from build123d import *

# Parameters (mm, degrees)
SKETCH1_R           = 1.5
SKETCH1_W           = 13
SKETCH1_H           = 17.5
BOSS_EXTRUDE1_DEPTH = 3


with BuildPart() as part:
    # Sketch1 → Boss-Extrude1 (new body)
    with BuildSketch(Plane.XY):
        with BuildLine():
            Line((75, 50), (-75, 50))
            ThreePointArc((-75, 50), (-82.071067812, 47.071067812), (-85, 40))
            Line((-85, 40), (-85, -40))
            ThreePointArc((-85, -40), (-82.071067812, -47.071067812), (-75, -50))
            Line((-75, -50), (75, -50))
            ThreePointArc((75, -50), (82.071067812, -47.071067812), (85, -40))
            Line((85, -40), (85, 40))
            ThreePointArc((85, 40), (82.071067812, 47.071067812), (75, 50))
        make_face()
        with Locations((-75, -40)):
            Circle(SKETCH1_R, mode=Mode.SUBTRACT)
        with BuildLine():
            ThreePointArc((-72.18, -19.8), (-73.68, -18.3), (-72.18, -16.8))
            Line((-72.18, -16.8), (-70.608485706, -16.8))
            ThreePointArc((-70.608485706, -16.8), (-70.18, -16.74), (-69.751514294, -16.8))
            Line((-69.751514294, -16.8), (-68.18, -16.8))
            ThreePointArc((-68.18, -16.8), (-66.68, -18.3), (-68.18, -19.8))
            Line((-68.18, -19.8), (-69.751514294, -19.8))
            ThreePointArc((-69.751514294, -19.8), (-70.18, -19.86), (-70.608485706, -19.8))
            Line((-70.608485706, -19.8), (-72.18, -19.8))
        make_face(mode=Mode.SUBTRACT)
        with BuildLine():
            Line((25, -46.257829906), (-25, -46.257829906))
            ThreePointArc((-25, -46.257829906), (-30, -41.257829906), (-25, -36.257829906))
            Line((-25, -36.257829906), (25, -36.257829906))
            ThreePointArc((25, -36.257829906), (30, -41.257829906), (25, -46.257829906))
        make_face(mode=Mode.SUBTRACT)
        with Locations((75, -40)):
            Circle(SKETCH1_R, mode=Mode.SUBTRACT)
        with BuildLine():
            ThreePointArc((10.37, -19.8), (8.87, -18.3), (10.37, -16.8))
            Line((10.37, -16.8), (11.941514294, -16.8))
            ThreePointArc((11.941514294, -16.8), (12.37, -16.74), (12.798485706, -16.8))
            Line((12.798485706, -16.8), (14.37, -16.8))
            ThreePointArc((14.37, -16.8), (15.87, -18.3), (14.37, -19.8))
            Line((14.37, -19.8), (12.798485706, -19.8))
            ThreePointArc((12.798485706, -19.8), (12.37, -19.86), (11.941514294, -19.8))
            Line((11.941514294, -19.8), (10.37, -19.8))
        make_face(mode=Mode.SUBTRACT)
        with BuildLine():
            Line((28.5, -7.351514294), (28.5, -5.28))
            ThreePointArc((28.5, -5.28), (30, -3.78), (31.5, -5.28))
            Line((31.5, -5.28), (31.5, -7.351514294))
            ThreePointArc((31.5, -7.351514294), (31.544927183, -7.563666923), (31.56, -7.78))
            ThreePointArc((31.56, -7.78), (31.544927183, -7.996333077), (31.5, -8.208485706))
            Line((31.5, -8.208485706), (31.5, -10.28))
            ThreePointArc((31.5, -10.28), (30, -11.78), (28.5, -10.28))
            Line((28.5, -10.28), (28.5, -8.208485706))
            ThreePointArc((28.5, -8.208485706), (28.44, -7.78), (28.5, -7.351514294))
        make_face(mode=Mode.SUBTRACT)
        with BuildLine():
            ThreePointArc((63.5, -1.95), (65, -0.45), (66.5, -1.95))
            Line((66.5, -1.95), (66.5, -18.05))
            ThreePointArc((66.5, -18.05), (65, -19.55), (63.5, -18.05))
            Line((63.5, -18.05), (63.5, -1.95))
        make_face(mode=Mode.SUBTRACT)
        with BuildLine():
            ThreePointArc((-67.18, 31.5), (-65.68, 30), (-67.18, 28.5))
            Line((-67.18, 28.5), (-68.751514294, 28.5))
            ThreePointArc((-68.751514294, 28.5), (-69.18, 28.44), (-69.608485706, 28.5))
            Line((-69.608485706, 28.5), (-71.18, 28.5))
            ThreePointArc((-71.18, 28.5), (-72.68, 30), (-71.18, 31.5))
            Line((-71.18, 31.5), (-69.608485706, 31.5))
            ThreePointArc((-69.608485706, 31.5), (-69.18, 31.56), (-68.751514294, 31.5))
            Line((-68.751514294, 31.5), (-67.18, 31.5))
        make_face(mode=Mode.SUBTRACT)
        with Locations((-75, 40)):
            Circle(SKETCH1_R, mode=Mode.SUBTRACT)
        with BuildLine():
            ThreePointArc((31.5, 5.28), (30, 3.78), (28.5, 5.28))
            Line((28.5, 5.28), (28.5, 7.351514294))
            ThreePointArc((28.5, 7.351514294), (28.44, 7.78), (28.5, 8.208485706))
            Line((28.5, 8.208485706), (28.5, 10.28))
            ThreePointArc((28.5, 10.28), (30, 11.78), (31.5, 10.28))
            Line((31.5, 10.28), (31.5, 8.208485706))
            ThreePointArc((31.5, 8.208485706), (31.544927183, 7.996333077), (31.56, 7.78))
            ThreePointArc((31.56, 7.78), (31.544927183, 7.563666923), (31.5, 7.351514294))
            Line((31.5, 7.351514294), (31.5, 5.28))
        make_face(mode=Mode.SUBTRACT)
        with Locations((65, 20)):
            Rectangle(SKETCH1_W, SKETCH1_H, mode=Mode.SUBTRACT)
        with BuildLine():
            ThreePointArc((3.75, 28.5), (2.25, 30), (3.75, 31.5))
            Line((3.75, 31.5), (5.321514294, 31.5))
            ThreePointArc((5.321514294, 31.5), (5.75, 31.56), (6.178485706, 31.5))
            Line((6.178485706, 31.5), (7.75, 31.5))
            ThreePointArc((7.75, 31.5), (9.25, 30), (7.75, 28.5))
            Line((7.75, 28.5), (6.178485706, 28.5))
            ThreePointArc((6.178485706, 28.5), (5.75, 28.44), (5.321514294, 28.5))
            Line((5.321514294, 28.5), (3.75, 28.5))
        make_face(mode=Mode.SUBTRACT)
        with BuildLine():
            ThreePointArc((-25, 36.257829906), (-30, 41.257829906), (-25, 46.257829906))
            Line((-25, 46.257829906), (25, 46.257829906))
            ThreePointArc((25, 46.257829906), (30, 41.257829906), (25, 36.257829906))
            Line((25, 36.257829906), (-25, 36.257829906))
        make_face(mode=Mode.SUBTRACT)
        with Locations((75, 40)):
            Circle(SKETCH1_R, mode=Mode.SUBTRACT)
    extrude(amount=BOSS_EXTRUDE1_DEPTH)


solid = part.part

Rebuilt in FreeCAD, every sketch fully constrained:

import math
import FreeCAD as App
import Part
import Sketcher

V = App.Vector
Q = App.Units.Quantity


def add_polygon(sketch, points):
    """Adds a closed chain of lines whose ends are joined by coincident constraints."""
    first, n = sketch.GeometryCount, len(points)
    for a, b in zip(points, points[1:] + points[:1]):
        sketch.addGeometry(Part.LineSegment(App.Vector(*a, 0), App.Vector(*b, 0)), False)
    for i in range(n):
        sketch.addConstraint(Sketcher.Constraint("Coincident", first + i, 2, first + (i + 1) % n, 1))

doc = App.newDocument("Part")
params = doc.addObject("Spreadsheet::Sheet", "Params")
for row, (alias, value) in enumerate([
    ("sketch1_diameter", "3 mm"),
    ("sketch1_radius", "10 mm"),
    ("sketch1_radius2", "5 mm"),
    ("sketch1_width", "150 mm"),
    ("sketch1_width2", "50 mm"),
    ("pad1_length", "3 mm"),
], start=1):
    params.set(f"A{row}", alias)
    params.set(f"B{row}", "=" + value)
    params.setAlias(f"B{row}", alias)

body = doc.addObject("PartDesign::Body", "Body")

sketch1 = body.newObject("Sketcher::SketchObject", "Sketch")
sketch1.AttachmentSupport = (doc.getObject("XY_Plane"), [""])
sketch1.MapMode = "FlatFace"
sketch1.addGeometry(Part.LineSegment(V(75, 50, 0), V(-75, 50, 0)), False)
sketch1.addGeometry(Part.ArcOfCircle(Part.Circle(V(-75, 40, 0), V(0, 0, 1), 10), math.radians(90), math.radians(180)), False)
sketch1.addGeometry(Part.LineSegment(V(-85, 40, 0), V(-85, -40, 0)), False)
sketch1.addGeometry(Part.ArcOfCircle(Part.Circle(V(-75, -40, 0), V(0, 0, 1), 10), math.radians(180), math.radians(270)), False)
sketch1.addGeometry(Part.LineSegment(V(-75, -50, 0), V(75, -50, 0)), False)
sketch1.addGeometry(Part.ArcOfCircle(Part.Circle(V(75, -40, 0), V(0, 0, 1), 10), math.radians(-90), math.radians(0)), False)
sketch1.addGeometry(Part.LineSegment(V(85, -40, 0), V(85, 40, 0)), False)
sketch1.addGeometry(Part.ArcOfCircle(Part.Circle(V(75, 40, 0), V(0, 0, 1), 10), math.radians(0), math.radians(90)), False)
sketch1.addGeometry(Part.Circle(V(-75, -40, 0), V(0, 0, 1), 1.5), False)
sketch1.addGeometry(Part.LineSegment(V(-70.61, -19.8, 0), V(-72.18, -19.8, 0)), False)
sketch1.addGeometry(Part.ArcOfCircle(Part.Circle(V(-72.18, -18.3, 0), V(0, 0, 1), 1.5), math.radians(90), math.radians(270)), False)
sketch1.addGeometry(Part.LineSegment(V(-72.18, -16.8, 0), V(-70.61, -16.8, 0)), False)
sketch1.addGeometry(Part.ArcOfCircle(Part.Circle(V(-70.18, -18.3, 0), V(0, 0, 1), 1.56), math.radians(74), math.radians(106)), False)
sketch1.addGeometry(Part.LineSegment(V(-69.75, -16.8, 0), V(-68.18, -16.8, 0)), False)
sketch1.addGeometry(Part.ArcOfCircle(Part.Circle(V(-68.18, -18.3, 0), V(0, 0, 1), 1.5), math.radians(-90), math.radians(90)), False)
sketch1.addGeometry(Part.LineSegment(V(-68.18, -19.8, 0), V(-69.75, -19.8, 0)), False)
sketch1.addGeometry(Part.ArcOfCircle(Part.Circle(V(-70.18, -18.3, 0), V(0, 0, 1), 1.56), math.radians(-106), math.radians(-74)), False)
sketch1.addGeometry(Part.ArcOfCircle(Part.Circle(V(25, -41.26, 0), V(0, 0, 1), 5), math.radians(-90), math.radians(90)), False)
sketch1.addGeometry(Part.LineSegment(V(25, -46.26, 0), V(-25, -46.26, 0)), False)
sketch1.addGeometry(Part.ArcOfCircle(Part.Circle(V(-25, -41.26, 0), V(0, 0, 1), 5), math.radians(90), math.radians(270)), False)
sketch1.addGeometry(Part.LineSegment(V(-25, -36.26, 0), V(25, -36.26, 0)), False)
sketch1.addGeometry(Part.Circle(V(75, -40, 0), V(0, 0, 1), 1.5), False)
sketch1.addGeometry(Part.LineSegment(V(11.94, -19.8, 0), V(10.37, -19.8, 0)), False)
sketch1.addGeometry(Part.ArcOfCircle(Part.Circle(V(10.37, -18.3, 0), V(0, 0, 1), 1.5), math.radians(90), math.radians(270)), False)
sketch1.addGeometry(Part.LineSegment(V(10.37, -16.8, 0), V(11.94, -16.8, 0)), False)
sketch1.addGeometry(Part.ArcOfCircle(Part.Circle(V(12.37, -18.3, 0), V(0, 0, 1), 1.56), math.radians(74), math.radians(106)), False)
sketch1.addGeometry(Part.LineSegment(V(12.8, -16.8, 0), V(14.37, -16.8, 0)), False)
sketch1.addGeometry(Part.ArcOfCircle(Part.Circle(V(14.37, -18.3, 0), V(0, 0, 1), 1.5), math.radians(-90), math.radians(90)), False)
sketch1.addGeometry(Part.LineSegment(V(14.37, -19.8, 0), V(12.8, -19.8, 0)), False)
sketch1.addGeometry(Part.ArcOfCircle(Part.Circle(V(12.37, -18.3, 0), V(0, 0, 1), 1.56), math.radians(-106), math.radians(-74)), False)
sketch1.addGeometry(Part.ArcOfCircle(Part.Circle(V(30, -7.78, 0), V(0, 0, 1), 1.56), math.radians(164), math.radians(196)), False)
sketch1.addGeometry(Part.LineSegment(V(28.5, -7.35, 0), V(28.5, -5.28, 0)), False)
sketch1.addGeometry(Part.ArcOfCircle(Part.Circle(V(30, -5.28, 0), V(0, 0, 1), 1.5), math.radians(0), math.radians(180)), False)
sketch1.addGeometry(Part.LineSegment(V(31.5, -5.28, 0), V(31.5, -7.35, 0)), False)
sketch1.addGeometry(Part.ArcOfCircle(Part.Circle(V(30, -7.78, 0), V(0, 0, 1), 1.56), math.radians(0), math.radians(15.94)), False)
sketch1.addGeometry(Part.ArcOfCircle(Part.Circle(V(30, -7.78, 0), V(0, 0, 1), 1.56), math.radians(-15.94), math.radians(0)), False)
sketch1.addGeometry(Part.LineSegment(V(31.5, -8.21, 0), V(31.5, -10.28, 0)), False)
sketch1.addGeometry(Part.ArcOfCircle(Part.Circle(V(30, -10.28, 0), V(0, 0, 1), 1.5), math.radians(180), math.radians(360)), False)
sketch1.addGeometry(Part.LineSegment(V(28.5, -10.28, 0), V(28.5, -8.21, 0)), False)
sketch1.addGeometry(Part.LineSegment(V(63.5, -18.05, 0), V(63.5, -1.95, 0)), False)
sketch1.addGeometry(Part.ArcOfCircle(Part.Circle(V(65, -1.95, 0), V(0, 0, 1), 1.5), math.radians(0), math.radians(180)), False)
sketch1.addGeometry(Part.LineSegment(V(66.5, -1.95, 0), V(66.5, -18.05, 0)), False)
sketch1.addGeometry(Part.ArcOfCircle(Part.Circle(V(65, -18.05, 0), V(0, 0, 1), 1.5), math.radians(180), math.radians(360)), False)
sketch1.addGeometry(Part.LineSegment(V(-68.75, 31.5, 0), V(-67.18, 31.5, 0)), False)
sketch1.addGeometry(Part.ArcOfCircle(Part.Circle(V(-67.18, 30, 0), V(0, 0, 1), 1.5), math.radians(-90), math.radians(90)), False)
sketch1.addGeometry(Part.LineSegment(V(-67.18, 28.5, 0), V(-68.75, 28.5, 0)), False)
sketch1.addGeometry(Part.ArcOfCircle(Part.Circle(V(-69.18, 30, 0), V(0, 0, 1), 1.56), math.radians(-106), math.radians(-74)), False)
sketch1.addGeometry(Part.LineSegment(V(-69.61, 28.5, 0), V(-71.18, 28.5, 0)), False)
sketch1.addGeometry(Part.ArcOfCircle(Part.Circle(V(-71.18, 30, 0), V(0, 0, 1), 1.5), math.radians(90), math.radians(270)), False)
sketch1.addGeometry(Part.LineSegment(V(-71.18, 31.5, 0), V(-69.61, 31.5, 0)), False)
sketch1.addGeometry(Part.ArcOfCircle(Part.Circle(V(-69.18, 30, 0), V(0, 0, 1), 1.56), math.radians(74), math.radians(106)), False)
sketch1.addGeometry(Part.Circle(V(-75, 40, 0), V(0, 0, 1), 1.5), False)
sketch1.addGeometry(Part.LineSegment(V(31.5, 7.35, 0), V(31.5, 5.28, 0)), False)
sketch1.addGeometry(Part.ArcOfCircle(Part.Circle(V(30, 5.28, 0), V(0, 0, 1), 1.5), math.radians(180), math.radians(360)), False)
sketch1.addGeometry(Part.LineSegment(V(28.5, 5.28, 0), V(28.5, 7.35, 0)), False)
sketch1.addGeometry(Part.ArcOfCircle(Part.Circle(V(30, 7.78, 0), V(0, 0, 1), 1.56), math.radians(164), math.radians(196)), False)
sketch1.addGeometry(Part.LineSegment(V(28.5, 8.21, 0), V(28.5, 10.28, 0)), False)
sketch1.addGeometry(Part.ArcOfCircle(Part.Circle(V(30, 10.28, 0), V(0, 0, 1), 1.5), math.radians(0), math.radians(180)), False)
sketch1.addGeometry(Part.LineSegment(V(31.5, 10.28, 0), V(31.5, 8.21, 0)), False)
sketch1.addGeometry(Part.ArcOfCircle(Part.Circle(V(30, 7.78, 0), V(0, 0, 1), 1.56), math.radians(0), math.radians(15.94)), False)
sketch1.addGeometry(Part.ArcOfCircle(Part.Circle(V(30, 7.78, 0), V(0, 0, 1), 1.56), math.radians(-15.94), math.radians(0)), False)
add_polygon(sketch1, [(71.5, 11.25), (58.5, 11.25), (58.5, 28.75), (71.5, 28.75)])
sketch1.addGeometry(Part.LineSegment(V(5.32, 28.5, 0), V(3.75, 28.5, 0)), False)
sketch1.addGeometry(Part.ArcOfCircle(Part.Circle(V(3.75, 30, 0), V(0, 0, 1), 1.5), math.radians(90), math.radians(270)), False)
sketch1.addGeometry(Part.LineSegment(V(3.75, 31.5, 0), V(5.32, 31.5, 0)), False)
sketch1.addGeometry(Part.ArcOfCircle(Part.Circle(V(5.75, 30, 0), V(0, 0, 1), 1.56), math.radians(74), math.radians(106)), False)
sketch1.addGeometry(Part.LineSegment(V(6.18, 31.5, 0), V(7.75, 31.5, 0)), False)
sketch1.addGeometry(Part.ArcOfCircle(Part.Circle(V(7.75, 30, 0), V(0, 0, 1), 1.5), math.radians(-90), math.radians(90)), False)
sketch1.addGeometry(Part.LineSegment(V(7.75, 28.5, 0), V(6.18, 28.5, 0)), False)
sketch1.addGeometry(Part.ArcOfCircle(Part.Circle(V(5.75, 30, 0), V(0, 0, 1), 1.56), math.radians(-106), math.radians(-74)), False)
sketch1.addGeometry(Part.LineSegment(V(25, 36.26, 0), V(-25, 36.26, 0)), False)
sketch1.addGeometry(Part.ArcOfCircle(Part.Circle(V(-25, 41.26, 0), V(0, 0, 1), 5), math.radians(90), math.radians(270)), False)
sketch1.addGeometry(Part.LineSegment(V(-25, 46.26, 0), V(25, 46.26, 0)), False)
sketch1.addGeometry(Part.ArcOfCircle(Part.Circle(V(25, 41.26, 0), V(0, 0, 1), 5), math.radians(-90), math.radians(90)), False)
sketch1.addGeometry(Part.Circle(V(75, 40, 0), V(0, 0, 1), 1.5), False)
sketch1.addConstraint(Sketcher.Constraint("Tangent", 0, 2, 1, 1))
sketch1.addConstraint(Sketcher.Constraint("Tangent", 1, 2, 2, 1))
sketch1.addConstraint(Sketcher.Constraint("Tangent", 2, 2, 3, 1))
sketch1.addConstraint(Sketcher.Constraint("Tangent", 3, 2, 4, 1))
sketch1.addConstraint(Sketcher.Constraint("Tangent", 4, 2, 5, 1))
sketch1.addConstraint(Sketcher.Constraint("Tangent", 5, 2, 6, 1))
sketch1.addConstraint(Sketcher.Constraint("Tangent", 6, 2, 7, 1))
sketch1.addConstraint(Sketcher.Constraint("Tangent", 7, 2, 0, 1))
sketch1.addConstraint(Sketcher.Constraint("Tangent", 9, 2, 10, 2))
sketch1.addConstraint(Sketcher.Constraint("Tangent", 10, 1, 11, 1))
sketch1.addConstraint(Sketcher.Constraint("Coincident", 11, 2, 12, 2))
sketch1.addConstraint(Sketcher.Constraint("Coincident", 12, 1, 13, 1))
sketch1.addConstraint(Sketcher.Constraint("Tangent", 13, 2, 14, 2))
sketch1.addConstraint(Sketcher.Constraint("Tangent", 14, 1, 15, 1))
sketch1.addConstraint(Sketcher.Constraint("Coincident", 15, 2, 16, 2))
sketch1.addConstraint(Sketcher.Constraint("Coincident", 16, 1, 9, 1))
sketch1.addConstraint(Sketcher.Constraint("Tangent", 17, 1, 18, 1))
sketch1.addConstraint(Sketcher.Constraint("Tangent", 18, 2, 19, 2))
sketch1.addConstraint(Sketcher.Constraint("Tangent", 19, 1, 20, 1))
sketch1.addConstraint(Sketcher.Constraint("Tangent", 20, 2, 17, 2))
sketch1.addConstraint(Sketcher.Constraint("Tangent", 22, 2, 23, 2))
sketch1.addConstraint(Sketcher.Constraint("Tangent", 23, 1, 24, 1))
sketch1.addConstraint(Sketcher.Constraint("Coincident", 24, 2, 25, 2))
sketch1.addConstraint(Sketcher.Constraint("Coincident", 25, 1, 26, 1))
sketch1.addConstraint(Sketcher.Constraint("Tangent", 26, 2, 27, 2))
sketch1.addConstraint(Sketcher.Constraint("Tangent", 27, 1, 28, 1))
sketch1.addConstraint(Sketcher.Constraint("Coincident", 28, 2, 29, 2))
sketch1.addConstraint(Sketcher.Constraint("Coincident", 29, 1, 22, 1))
sketch1.addConstraint(Sketcher.Constraint("Coincident", 30, 1, 31, 1))
sketch1.addConstraint(Sketcher.Constraint("Tangent", 31, 2, 32, 2))
sketch1.addConstraint(Sketcher.Constraint("Tangent", 32, 1, 33, 1))
sketch1.addConstraint(Sketcher.Constraint("Coincident", 33, 2, 34, 2))
sketch1.addConstraint(Sketcher.Constraint("Tangent", 34, 1, 35, 2))
sketch1.addConstraint(Sketcher.Constraint("Coincident", 35, 1, 36, 1))
sketch1.addConstraint(Sketcher.Constraint("Tangent", 36, 2, 37, 2))
sketch1.addConstraint(Sketcher.Constraint("Tangent", 37, 1, 38, 1))
sketch1.addConstraint(Sketcher.Constraint("Coincident", 38, 2, 30, 2))
sketch1.addConstraint(Sketcher.Constraint("Tangent", 39, 2, 40, 2))
sketch1.addConstraint(Sketcher.Constraint("Tangent", 40, 1, 41, 1))
sketch1.addConstraint(Sketcher.Constraint("Tangent", 41, 2, 42, 2))
sketch1.addConstraint(Sketcher.Constraint("Tangent", 42, 1, 39, 1))
sketch1.addConstraint(Sketcher.Constraint("Tangent", 43, 2, 44, 2))
sketch1.addConstraint(Sketcher.Constraint("Tangent", 44, 1, 45, 1))
sketch1.addConstraint(Sketcher.Constraint("Coincident", 45, 2, 46, 2))
sketch1.addConstraint(Sketcher.Constraint("Coincident", 46, 1, 47, 1))
sketch1.addConstraint(Sketcher.Constraint("Tangent", 47, 2, 48, 2))
sketch1.addConstraint(Sketcher.Constraint("Tangent", 48, 1, 49, 1))
sketch1.addConstraint(Sketcher.Constraint("Coincident", 49, 2, 50, 2))
sketch1.addConstraint(Sketcher.Constraint("Coincident", 50, 1, 43, 1))
sketch1.addConstraint(Sketcher.Constraint("Tangent", 52, 2, 53, 2))
sketch1.addConstraint(Sketcher.Constraint("Tangent", 53, 1, 54, 1))
sketch1.addConstraint(Sketcher.Constraint("Coincident", 54, 2, 55, 2))
sketch1.addConstraint(Sketcher.Constraint("Coincident", 55, 1, 56, 1))
sketch1.addConstraint(Sketcher.Constraint("Tangent", 56, 2, 57, 2))
sketch1.addConstraint(Sketcher.Constraint("Tangent", 57, 1, 58, 1))
sketch1.addConstraint(Sketcher.Constraint("Coincident", 58, 2, 59, 2))
sketch1.addConstraint(Sketcher.Constraint("Tangent", 59, 1, 60, 2))
sketch1.addConstraint(Sketcher.Constraint("Coincident", 60, 1, 52, 1))
sketch1.addConstraint(Sketcher.Constraint("Tangent", 65, 2, 66, 2))
sketch1.addConstraint(Sketcher.Constraint("Tangent", 66, 1, 67, 1))
sketch1.addConstraint(Sketcher.Constraint("Coincident", 67, 2, 68, 2))
sketch1.addConstraint(Sketcher.Constraint("Coincident", 68, 1, 69, 1))
sketch1.addConstraint(Sketcher.Constraint("Tangent", 69, 2, 70, 2))
sketch1.addConstraint(Sketcher.Constraint("Tangent", 70, 1, 71, 1))
sketch1.addConstraint(Sketcher.Constraint("Coincident", 71, 2, 72, 2))
sketch1.addConstraint(Sketcher.Constraint("Coincident", 72, 1, 65, 1))
sketch1.addConstraint(Sketcher.Constraint("Tangent", 73, 2, 74, 2))
sketch1.addConstraint(Sketcher.Constraint("Tangent", 74, 1, 75, 1))
sketch1.addConstraint(Sketcher.Constraint("Tangent", 75, 2, 76, 2))
sketch1.addConstraint(Sketcher.Constraint("Tangent", 76, 1, 73, 1))
sketch1.addConstraint(Sketcher.Constraint("Horizontal", 0))
sketch1.addConstraint(Sketcher.Constraint("Vertical", 2))
sketch1.addConstraint(Sketcher.Constraint("Horizontal", 4))
sketch1.addConstraint(Sketcher.Constraint("Vertical", 6))
sketch1.addConstraint(Sketcher.Constraint("Horizontal", 9))
sketch1.addConstraint(Sketcher.Constraint("Horizontal", 11))
sketch1.addConstraint(Sketcher.Constraint("Horizontal", 13))
sketch1.addConstraint(Sketcher.Constraint("Horizontal", 15))
sketch1.addConstraint(Sketcher.Constraint("Horizontal", 18))
sketch1.addConstraint(Sketcher.Constraint("Horizontal", 20))
sketch1.addConstraint(Sketcher.Constraint("Horizontal", 22))
sketch1.addConstraint(Sketcher.Constraint("Horizontal", 24))
sketch1.addConstraint(Sketcher.Constraint("Horizontal", 26))
sketch1.addConstraint(Sketcher.Constraint("Horizontal", 28))
sketch1.addConstraint(Sketcher.Constraint("Vertical", 31))
sketch1.addConstraint(Sketcher.Constraint("Vertical", 33))
sketch1.addConstraint(Sketcher.Constraint("Vertical", 36))
sketch1.addConstraint(Sketcher.Constraint("Vertical", 38))
sketch1.addConstraint(Sketcher.Constraint("Vertical", 39))
sketch1.addConstraint(Sketcher.Constraint("Vertical", 41))
sketch1.addConstraint(Sketcher.Constraint("Horizontal", 43))
sketch1.addConstraint(Sketcher.Constraint("Horizontal", 45))
sketch1.addConstraint(Sketcher.Constraint("Horizontal", 47))
sketch1.addConstraint(Sketcher.Constraint("Horizontal", 49))
sketch1.addConstraint(Sketcher.Constraint("Vertical", 52))
sketch1.addConstraint(Sketcher.Constraint("Vertical", 54))
sketch1.addConstraint(Sketcher.Constraint("Vertical", 56))
sketch1.addConstraint(Sketcher.Constraint("Vertical", 58))
sketch1.addConstraint(Sketcher.Constraint("Horizontal", 61))
sketch1.addConstraint(Sketcher.Constraint("Vertical", 62))
sketch1.addConstraint(Sketcher.Constraint("Horizontal", 63))
sketch1.addConstraint(Sketcher.Constraint("Vertical", 64))
sketch1.addConstraint(Sketcher.Constraint("Horizontal", 65))
sketch1.addConstraint(Sketcher.Constraint("Horizontal", 67))
sketch1.addConstraint(Sketcher.Constraint("Horizontal", 69))
sketch1.addConstraint(Sketcher.Constraint("Horizontal", 71))
sketch1.addConstraint(Sketcher.Constraint("Horizontal", 73))
sketch1.addConstraint(Sketcher.Constraint("Horizontal", 75))
sketch1.addConstraint(Sketcher.Constraint("Coincident", 8, 3, 3, 3))
sketch1.addConstraint(Sketcher.Constraint("Coincident", 16, 3, 12, 3))
sketch1.addConstraint(Sketcher.Constraint("Coincident", 21, 3, 5, 3))
sketch1.addConstraint(Sketcher.Constraint("Coincident", 29, 3, 25, 3))
sketch1.addConstraint(Sketcher.Constraint("Coincident", 34, 3, 30, 3))
sketch1.addConstraint(Sketcher.Constraint("Coincident", 50, 3, 46, 3))
sketch1.addConstraint(Sketcher.Constraint("Coincident", 51, 3, 1, 3))
sketch1.addConstraint(Sketcher.Constraint("Coincident", 59, 3, 55, 3))
sketch1.addConstraint(Sketcher.Constraint("Coincident", 72, 3, 68, 3))
sketch1.addConstraint(Sketcher.Constraint("Coincident", 77, 3, 7, 3))
sketch1.addConstraint(Sketcher.Constraint("Equal", 1, 3))
sketch1.addConstraint(Sketcher.Constraint("Equal", 3, 5))
sketch1.addConstraint(Sketcher.Constraint("Equal", 5, 7))
sketch1.addConstraint(Sketcher.Constraint("Equal", 8, 10))
sketch1.addConstraint(Sketcher.Constraint("Equal", 10, 14))
sketch1.addConstraint(Sketcher.Constraint("Equal", 12, 16))
sketch1.addConstraint(Sketcher.Constraint("Equal", 14, 21))
sketch1.addConstraint(Sketcher.Constraint("Equal", 21, 23))
sketch1.addConstraint(Sketcher.Constraint("Equal", 16, 25))
sketch1.addConstraint(Sketcher.Constraint("Equal", 23, 27))
sketch1.addConstraint(Sketcher.Constraint("Equal", 25, 29))
sketch1.addConstraint(Sketcher.Constraint("Equal", 29, 30))
sketch1.addConstraint(Sketcher.Constraint("Equal", 27, 32))
sketch1.addConstraint(Sketcher.Constraint("Equal", 30, 34))
sketch1.addConstraint(Sketcher.Constraint("Equal", 34, 35))
sketch1.addConstraint(Sketcher.Constraint("Equal", 32, 37))
sketch1.addConstraint(Sketcher.Constraint("Equal", 37, 40))
sketch1.addConstraint(Sketcher.Constraint("Equal", 42, 44))
sketch1.addConstraint(Sketcher.Constraint("Equal", 35, 46))
sketch1.addConstraint(Sketcher.Constraint("Equal", 44, 48))
sketch1.addConstraint(Sketcher.Constraint("Equal", 46, 50))
sketch1.addConstraint(Sketcher.Constraint("Equal", 48, 51))
sketch1.addConstraint(Sketcher.Constraint("Equal", 51, 53))
sketch1.addConstraint(Sketcher.Constraint("Equal", 50, 55))
sketch1.addConstraint(Sketcher.Constraint("Equal", 53, 57))
sketch1.addConstraint(Sketcher.Constraint("Equal", 55, 59))
sketch1.addConstraint(Sketcher.Constraint("Equal", 59, 60))
sketch1.addConstraint(Sketcher.Constraint("Equal", 57, 66))
sketch1.addConstraint(Sketcher.Constraint("Equal", 60, 68))
sketch1.addConstraint(Sketcher.Constraint("Equal", 66, 70))
sketch1.addConstraint(Sketcher.Constraint("Equal", 68, 72))
sketch1.addConstraint(Sketcher.Constraint("Equal", 19, 74))
sketch1.addConstraint(Sketcher.Constraint("Equal", 70, 77))
sketch1.addConstraint(Sketcher.Constraint("Symmetric", 1, 3, 5, 3, -1, 1))
sketch1.addConstraint(Sketcher.Constraint("Symmetric", 17, 3, 74, 3, -1, 1))
sketch1.addConstraint(Sketcher.Constraint("Symmetric", 32, 3, 53, 3, -1))
sketch1.addConstraint(Sketcher.Constraint("Symmetric", 30, 3, 55, 3, -1))
sketch1.addConstraint(Sketcher.Constraint("Symmetric", 37, 3, 57, 3, -1))
sketch1.addConstraint(Sketcher.Constraint("Horizontal", 10, 3, 12, 3))
sketch1.addConstraint(Sketcher.Constraint("Horizontal", 12, 3, 14, 3))
sketch1.addConstraint(Sketcher.Constraint("Horizontal", 16, 3, 23, 3))
sketch1.addConstraint(Sketcher.Constraint("Horizontal", 23, 3, 25, 3))
sketch1.addConstraint(Sketcher.Constraint("Horizontal", 25, 3, 27, 3))
sketch1.addConstraint(Sketcher.Constraint("Horizontal", 44, 3, 46, 3))
sketch1.addConstraint(Sketcher.Constraint("Horizontal", 46, 3, 48, 3))
sketch1.addConstraint(Sketcher.Constraint("Horizontal", 50, 3, 66, 3))
sketch1.addConstraint(Sketcher.Constraint("Horizontal", 66, 3, 68, 3))
sketch1.addConstraint(Sketcher.Constraint("Horizontal", 68, 3, 70, 3))
sketch1.addConstraint(Sketcher.Constraint("Horizontal", 30, 1, 33, 2))
sketch1.addConstraint(Sketcher.Constraint("Horizontal", 35, 3, 34, 1))
sketch1.addConstraint(Sketcher.Constraint("Horizontal", 35, 1, 38, 2))
sketch1.addConstraint(Sketcher.Constraint("Horizontal", 60, 3, 59, 1))
sketch1.addConstraint(Sketcher.Constraint("Vertical", 19, 3, 74, 3))
sketch1.addConstraint(Sketcher.Constraint("Vertical", 17, 3, 76, 3))
sketch1.addConstraint(Sketcher.Constraint("Equal", 11, 13))
sketch1.addConstraint(Sketcher.Constraint("Equal", 15, 22))
sketch1.addConstraint(Sketcher.Constraint("Equal", 24, 26))
sketch1.addConstraint(Sketcher.Constraint("Equal", 28, 43))
sketch1.addConstraint(Sketcher.Constraint("Equal", 45, 47))
sketch1.addConstraint(Sketcher.Constraint("Equal", 49, 65))
sketch1.addConstraint(Sketcher.Constraint("Equal", 67, 69))
sketch1.addConstraint(Sketcher.Constraint("Equal", 33, 36))
sketch1.addConstraint(Sketcher.Constraint("Diameter", 8, Q("3 mm")))
sketch1.addConstraint(Sketcher.Constraint("Radius", 1, Q("10 mm")))
sketch1.addConstraint(Sketcher.Constraint("Radius", 17, Q("5 mm")))
sketch1.addConstraint(Sketcher.Constraint("DistanceX", 0, 2, 0, 1, Q("150 mm")))
sketch1.addConstraint(Sketcher.Constraint("DistanceX", 18, 2, 18, 1, Q("50 mm")))
sketch1.addConstraint(Sketcher.Constraint("DistanceX", 61, 2, 61, 1, Q("13 mm")))
sketch1.addConstraint(Sketcher.Constraint("DistanceY", 2, 2, 2, 1, Q("80 mm")))
sketch1.addConstraint(Sketcher.Constraint("Radius", 12, Q("1.56 mm")))
sketch1.addConstraint(Sketcher.Constraint("DistanceY", 39, 1, 39, 2, Q("16.1 mm")))
sketch1.addConstraint(Sketcher.Constraint("DistanceY", 62, 1, 62, 2, Q("17.5 mm")))
sketch1.addConstraint(Sketcher.Constraint("DistanceX", -1, 1, 30, 3, Q("30 mm")))
sketch1.addConstraint(Sketcher.Constraint("DistanceX", -1, 1, 40, 3, Q("65 mm")))
sketch1.addConstraint(Sketcher.Constraint("DistanceY", -1, 1, 44, 3, Q("30 mm")))
sketch1.addConstraint(Sketcher.Constraint("DistanceY", 10, 3, -1, 1, Q("18.3 mm")))
sketch1.addConstraint(Sketcher.Constraint("DistanceX", -1, 1, 61, 2, Q("58.5 mm")))
sketch1.addConstraint(Sketcher.Constraint("DistanceX", 10, 3, -1, 1, Q("72.18 mm")))
sketch1.addConstraint(Sketcher.Constraint("DistanceX", 12, 3, -1, 1, Q("70.18 mm")))
sketch1.addConstraint(Sketcher.Constraint("DistanceX", -1, 1, 23, 3, Q("10.37 mm")))
sketch1.addConstraint(Sketcher.Constraint("DistanceY", 30, 3, -1, 1, Q("7.78 mm")))
sketch1.addConstraint(Sketcher.Constraint("DistanceY", 32, 3, -1, 1, Q("5.28 mm")))
sketch1.addConstraint(Sketcher.Constraint("DistanceY", 40, 3, -1, 1, Q("1.95 mm")))
sketch1.addConstraint(Sketcher.Constraint("DistanceX", 44, 3, -1, 1, Q("67.18 mm")))
sketch1.addConstraint(Sketcher.Constraint("DistanceX", -1, 1, 66, 3, Q("3.75 mm")))
sketch1.addConstraint(Sketcher.Constraint("DistanceY", -1, 1, 61, 2, Q("11.25 mm")))
sketch1.addConstraint(Sketcher.Constraint("DistanceY", 17, 3, -1, 1, Q("41.25783 mm")))
sketch1.setExpression("Constraints[184]", "Params.sketch1_diameter")
sketch1.setExpression("Constraints[185]", "Params.sketch1_radius")
sketch1.setExpression("Constraints[186]", "Params.sketch1_radius2")
sketch1.setExpression("Constraints[187]", "Params.sketch1_width")
sketch1.setExpression("Constraints[188]", "Params.sketch1_width2")
pad1 = body.newObject("PartDesign::Pad", "Pad")
pad1.Profile = sketch1
pad1.setExpression("Length", "Params.pad1_length")

doc.recompute()
